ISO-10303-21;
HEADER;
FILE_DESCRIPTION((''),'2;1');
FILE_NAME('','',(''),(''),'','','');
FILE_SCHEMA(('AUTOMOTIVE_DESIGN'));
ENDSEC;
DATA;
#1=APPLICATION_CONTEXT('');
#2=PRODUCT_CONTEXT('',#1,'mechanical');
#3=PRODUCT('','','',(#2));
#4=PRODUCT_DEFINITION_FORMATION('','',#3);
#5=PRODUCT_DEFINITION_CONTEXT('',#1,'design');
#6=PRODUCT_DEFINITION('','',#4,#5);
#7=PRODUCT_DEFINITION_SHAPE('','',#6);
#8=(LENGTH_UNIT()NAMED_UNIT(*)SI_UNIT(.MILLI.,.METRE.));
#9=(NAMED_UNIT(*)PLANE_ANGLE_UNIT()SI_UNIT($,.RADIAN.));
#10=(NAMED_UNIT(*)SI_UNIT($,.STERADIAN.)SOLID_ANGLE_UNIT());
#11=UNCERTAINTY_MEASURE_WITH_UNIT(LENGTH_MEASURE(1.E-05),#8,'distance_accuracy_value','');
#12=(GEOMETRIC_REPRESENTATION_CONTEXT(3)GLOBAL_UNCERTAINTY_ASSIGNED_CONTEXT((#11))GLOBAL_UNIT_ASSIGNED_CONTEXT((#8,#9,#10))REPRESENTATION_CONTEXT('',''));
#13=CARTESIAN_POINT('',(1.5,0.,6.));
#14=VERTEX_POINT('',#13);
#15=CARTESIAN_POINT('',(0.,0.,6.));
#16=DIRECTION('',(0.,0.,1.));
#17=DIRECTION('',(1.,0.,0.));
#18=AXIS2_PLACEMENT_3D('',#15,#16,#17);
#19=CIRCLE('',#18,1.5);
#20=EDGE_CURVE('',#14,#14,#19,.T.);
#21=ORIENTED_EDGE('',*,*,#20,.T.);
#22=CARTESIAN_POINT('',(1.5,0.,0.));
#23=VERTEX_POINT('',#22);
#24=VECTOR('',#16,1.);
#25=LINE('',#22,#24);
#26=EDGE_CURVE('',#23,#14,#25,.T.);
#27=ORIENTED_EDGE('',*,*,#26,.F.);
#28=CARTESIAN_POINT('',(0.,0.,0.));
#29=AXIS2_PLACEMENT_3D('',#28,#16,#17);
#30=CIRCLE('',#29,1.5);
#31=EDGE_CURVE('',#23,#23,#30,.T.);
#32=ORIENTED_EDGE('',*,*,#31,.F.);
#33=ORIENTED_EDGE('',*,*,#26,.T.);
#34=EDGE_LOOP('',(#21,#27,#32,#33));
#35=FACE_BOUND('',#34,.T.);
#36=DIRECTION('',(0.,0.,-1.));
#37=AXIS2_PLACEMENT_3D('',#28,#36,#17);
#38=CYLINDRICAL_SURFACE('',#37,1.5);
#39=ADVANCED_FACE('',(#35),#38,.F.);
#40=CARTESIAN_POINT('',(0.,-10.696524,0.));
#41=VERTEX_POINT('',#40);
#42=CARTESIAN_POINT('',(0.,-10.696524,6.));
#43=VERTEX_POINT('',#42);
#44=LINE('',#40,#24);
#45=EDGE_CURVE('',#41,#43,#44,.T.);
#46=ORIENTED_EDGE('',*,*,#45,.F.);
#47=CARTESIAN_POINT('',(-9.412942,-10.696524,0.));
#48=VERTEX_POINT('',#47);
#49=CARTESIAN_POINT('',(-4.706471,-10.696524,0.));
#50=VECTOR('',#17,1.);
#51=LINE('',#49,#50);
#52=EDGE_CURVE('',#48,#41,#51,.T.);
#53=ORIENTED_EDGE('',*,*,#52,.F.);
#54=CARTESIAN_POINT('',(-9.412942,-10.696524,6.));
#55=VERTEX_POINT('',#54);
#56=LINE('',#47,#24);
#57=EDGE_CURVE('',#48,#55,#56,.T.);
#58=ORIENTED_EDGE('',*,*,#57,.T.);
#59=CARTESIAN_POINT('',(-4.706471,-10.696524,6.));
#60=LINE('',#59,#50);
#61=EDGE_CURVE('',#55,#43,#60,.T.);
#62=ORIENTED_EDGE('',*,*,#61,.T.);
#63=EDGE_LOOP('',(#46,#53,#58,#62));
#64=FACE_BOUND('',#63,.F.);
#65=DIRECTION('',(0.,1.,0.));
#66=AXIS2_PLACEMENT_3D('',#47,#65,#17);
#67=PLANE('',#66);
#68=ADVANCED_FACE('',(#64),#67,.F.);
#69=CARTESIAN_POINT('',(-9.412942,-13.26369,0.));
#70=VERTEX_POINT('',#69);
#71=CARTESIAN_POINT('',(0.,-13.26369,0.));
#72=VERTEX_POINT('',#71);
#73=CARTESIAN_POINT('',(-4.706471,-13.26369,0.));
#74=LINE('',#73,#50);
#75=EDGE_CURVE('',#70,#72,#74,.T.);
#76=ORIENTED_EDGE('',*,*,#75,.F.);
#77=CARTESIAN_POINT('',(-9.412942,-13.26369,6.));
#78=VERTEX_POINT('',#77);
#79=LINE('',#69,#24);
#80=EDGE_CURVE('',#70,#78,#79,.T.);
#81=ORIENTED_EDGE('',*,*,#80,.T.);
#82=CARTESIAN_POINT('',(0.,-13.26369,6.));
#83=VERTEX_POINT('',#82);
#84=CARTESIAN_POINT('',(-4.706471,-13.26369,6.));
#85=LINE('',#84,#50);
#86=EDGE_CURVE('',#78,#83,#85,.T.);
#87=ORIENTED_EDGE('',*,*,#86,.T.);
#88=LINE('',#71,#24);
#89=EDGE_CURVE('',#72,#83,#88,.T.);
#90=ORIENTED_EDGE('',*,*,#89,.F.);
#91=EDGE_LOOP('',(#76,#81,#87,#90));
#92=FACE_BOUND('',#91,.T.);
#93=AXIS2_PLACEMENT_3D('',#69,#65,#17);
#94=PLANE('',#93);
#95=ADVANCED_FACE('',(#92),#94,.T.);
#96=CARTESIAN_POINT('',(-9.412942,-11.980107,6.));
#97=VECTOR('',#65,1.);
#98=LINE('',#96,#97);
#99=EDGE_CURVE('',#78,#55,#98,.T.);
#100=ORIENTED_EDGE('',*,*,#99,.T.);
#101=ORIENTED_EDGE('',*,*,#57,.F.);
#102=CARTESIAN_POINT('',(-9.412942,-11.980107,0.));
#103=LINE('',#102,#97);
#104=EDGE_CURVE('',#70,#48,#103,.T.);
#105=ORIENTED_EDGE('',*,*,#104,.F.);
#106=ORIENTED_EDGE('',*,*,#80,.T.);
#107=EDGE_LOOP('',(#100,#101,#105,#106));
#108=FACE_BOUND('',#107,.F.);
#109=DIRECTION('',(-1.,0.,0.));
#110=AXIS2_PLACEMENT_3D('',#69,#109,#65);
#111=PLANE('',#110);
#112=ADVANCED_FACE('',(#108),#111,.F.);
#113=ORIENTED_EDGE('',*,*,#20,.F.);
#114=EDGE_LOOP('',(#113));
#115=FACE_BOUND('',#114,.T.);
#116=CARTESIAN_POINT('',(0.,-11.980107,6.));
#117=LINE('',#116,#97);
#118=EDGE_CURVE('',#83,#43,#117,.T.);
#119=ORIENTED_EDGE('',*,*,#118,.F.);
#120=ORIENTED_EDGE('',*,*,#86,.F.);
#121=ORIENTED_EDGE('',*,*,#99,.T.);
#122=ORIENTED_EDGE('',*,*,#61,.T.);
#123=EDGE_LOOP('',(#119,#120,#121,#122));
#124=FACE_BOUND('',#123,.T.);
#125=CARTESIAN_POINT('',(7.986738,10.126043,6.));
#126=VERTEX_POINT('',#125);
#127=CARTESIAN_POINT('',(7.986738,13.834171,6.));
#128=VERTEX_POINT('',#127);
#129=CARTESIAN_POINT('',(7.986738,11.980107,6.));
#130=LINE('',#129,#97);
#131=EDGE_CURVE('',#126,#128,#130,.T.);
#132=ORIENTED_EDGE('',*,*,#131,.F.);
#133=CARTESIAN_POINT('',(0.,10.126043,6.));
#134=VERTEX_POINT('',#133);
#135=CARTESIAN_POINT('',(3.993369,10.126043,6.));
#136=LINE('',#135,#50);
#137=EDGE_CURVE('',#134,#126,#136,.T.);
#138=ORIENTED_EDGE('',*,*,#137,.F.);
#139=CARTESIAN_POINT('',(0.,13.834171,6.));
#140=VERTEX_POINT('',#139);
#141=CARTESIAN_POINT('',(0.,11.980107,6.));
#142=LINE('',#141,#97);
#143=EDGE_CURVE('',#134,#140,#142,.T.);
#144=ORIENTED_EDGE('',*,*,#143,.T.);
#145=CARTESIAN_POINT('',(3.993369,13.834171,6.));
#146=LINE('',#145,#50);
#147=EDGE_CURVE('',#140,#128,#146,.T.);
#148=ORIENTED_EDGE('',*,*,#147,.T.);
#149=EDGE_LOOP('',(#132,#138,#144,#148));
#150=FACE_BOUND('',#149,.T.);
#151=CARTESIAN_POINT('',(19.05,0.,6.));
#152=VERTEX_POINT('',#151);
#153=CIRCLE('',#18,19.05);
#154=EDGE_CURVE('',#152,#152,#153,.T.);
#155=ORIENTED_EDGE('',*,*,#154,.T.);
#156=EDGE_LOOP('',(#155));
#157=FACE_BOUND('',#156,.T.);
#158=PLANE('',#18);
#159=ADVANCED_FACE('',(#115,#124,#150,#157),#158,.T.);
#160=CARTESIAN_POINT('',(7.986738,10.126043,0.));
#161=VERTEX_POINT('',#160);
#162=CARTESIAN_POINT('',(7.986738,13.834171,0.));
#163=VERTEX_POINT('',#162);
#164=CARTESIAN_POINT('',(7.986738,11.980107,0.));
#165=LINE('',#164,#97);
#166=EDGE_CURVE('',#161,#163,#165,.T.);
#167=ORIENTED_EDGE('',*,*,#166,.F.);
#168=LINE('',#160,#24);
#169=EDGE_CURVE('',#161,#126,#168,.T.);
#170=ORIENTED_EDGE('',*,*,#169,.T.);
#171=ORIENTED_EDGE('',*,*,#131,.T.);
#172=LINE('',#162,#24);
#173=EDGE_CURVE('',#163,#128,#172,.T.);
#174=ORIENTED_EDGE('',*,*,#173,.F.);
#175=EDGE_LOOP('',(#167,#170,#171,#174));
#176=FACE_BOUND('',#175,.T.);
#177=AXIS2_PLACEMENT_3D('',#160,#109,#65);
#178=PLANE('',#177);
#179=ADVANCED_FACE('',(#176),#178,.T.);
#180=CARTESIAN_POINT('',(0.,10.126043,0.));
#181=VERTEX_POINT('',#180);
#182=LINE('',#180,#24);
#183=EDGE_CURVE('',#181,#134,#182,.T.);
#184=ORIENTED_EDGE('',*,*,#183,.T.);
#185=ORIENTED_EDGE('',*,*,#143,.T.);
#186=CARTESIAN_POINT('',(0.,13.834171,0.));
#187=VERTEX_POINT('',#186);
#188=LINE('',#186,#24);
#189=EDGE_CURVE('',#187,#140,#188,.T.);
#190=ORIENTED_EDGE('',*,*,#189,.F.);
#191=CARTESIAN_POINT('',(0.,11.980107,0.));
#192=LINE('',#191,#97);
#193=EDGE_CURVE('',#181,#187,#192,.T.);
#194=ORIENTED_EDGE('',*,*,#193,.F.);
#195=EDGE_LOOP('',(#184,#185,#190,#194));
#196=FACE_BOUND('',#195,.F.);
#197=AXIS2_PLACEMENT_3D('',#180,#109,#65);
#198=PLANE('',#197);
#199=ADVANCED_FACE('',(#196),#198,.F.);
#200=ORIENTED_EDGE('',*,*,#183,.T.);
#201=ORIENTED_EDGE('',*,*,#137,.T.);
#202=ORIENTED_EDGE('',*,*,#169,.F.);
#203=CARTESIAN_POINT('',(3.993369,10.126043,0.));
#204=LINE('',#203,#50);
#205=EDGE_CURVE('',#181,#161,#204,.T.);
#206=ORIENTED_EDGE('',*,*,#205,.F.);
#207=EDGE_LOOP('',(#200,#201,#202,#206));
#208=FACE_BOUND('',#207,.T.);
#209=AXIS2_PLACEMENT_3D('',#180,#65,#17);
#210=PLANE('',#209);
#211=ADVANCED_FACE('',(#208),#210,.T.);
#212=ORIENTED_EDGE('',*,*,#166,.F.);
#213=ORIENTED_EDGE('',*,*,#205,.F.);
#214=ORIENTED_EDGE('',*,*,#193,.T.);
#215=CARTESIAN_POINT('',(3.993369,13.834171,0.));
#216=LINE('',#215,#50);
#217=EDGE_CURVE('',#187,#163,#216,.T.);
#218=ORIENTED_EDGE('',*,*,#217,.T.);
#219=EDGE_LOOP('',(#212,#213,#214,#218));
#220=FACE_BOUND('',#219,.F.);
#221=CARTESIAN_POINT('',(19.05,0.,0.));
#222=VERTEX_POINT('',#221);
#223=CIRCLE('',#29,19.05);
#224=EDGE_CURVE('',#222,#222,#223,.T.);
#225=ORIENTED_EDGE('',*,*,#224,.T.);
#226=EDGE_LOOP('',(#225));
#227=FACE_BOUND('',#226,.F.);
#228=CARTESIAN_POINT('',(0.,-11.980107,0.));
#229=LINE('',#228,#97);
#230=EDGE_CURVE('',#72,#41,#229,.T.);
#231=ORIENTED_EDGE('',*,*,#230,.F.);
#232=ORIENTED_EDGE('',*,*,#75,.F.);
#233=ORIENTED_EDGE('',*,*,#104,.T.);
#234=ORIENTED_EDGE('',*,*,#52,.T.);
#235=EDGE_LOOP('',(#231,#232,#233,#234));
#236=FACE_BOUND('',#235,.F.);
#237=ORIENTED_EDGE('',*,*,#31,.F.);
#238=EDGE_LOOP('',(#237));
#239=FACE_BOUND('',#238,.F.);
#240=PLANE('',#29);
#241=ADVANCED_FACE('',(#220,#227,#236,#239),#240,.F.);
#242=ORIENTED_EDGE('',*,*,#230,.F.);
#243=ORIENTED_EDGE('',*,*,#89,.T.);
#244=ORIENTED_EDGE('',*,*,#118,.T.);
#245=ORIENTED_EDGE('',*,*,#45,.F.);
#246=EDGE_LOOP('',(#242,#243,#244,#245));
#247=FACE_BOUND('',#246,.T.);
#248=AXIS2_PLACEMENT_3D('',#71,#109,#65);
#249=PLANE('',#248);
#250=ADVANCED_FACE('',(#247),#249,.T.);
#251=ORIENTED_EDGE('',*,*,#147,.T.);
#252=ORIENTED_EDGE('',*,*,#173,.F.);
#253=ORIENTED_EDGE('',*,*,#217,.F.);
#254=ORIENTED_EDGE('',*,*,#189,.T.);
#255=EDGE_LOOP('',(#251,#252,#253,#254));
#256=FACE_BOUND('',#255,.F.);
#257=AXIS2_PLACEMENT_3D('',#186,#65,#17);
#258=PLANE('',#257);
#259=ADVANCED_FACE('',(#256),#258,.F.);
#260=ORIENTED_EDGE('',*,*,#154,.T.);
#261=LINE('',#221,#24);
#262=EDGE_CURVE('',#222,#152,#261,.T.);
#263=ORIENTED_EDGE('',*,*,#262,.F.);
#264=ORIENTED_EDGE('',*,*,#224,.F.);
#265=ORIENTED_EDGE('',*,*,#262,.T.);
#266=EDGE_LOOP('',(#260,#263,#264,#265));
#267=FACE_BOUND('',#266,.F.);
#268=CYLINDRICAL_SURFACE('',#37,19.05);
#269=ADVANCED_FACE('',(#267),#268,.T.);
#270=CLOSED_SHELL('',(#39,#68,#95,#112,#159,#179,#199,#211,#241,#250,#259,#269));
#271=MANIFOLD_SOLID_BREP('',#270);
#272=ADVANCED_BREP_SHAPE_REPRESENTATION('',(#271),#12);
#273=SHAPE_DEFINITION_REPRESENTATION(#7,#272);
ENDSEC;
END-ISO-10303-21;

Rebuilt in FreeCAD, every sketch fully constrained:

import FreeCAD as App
import Part
import Sketcher
from FreeCAD import Vector


def add_polygon(sketch, points):
    """Adds a closed chain of lines whose ends are joined by coincident constraints."""
    first, n = sketch.GeometryCount, len(points)
    for a, b in zip(points, points[1:] + points[:1]):
        sketch.addGeometry(Part.LineSegment(App.Vector(*a, 0), App.Vector(*b, 0)), False)
    for i in range(n):
        sketch.addConstraint(Sketcher.Constraint("Coincident", first + i, 2, first + (i + 1) % n, 1))

doc = App.newDocument("Part")
params = doc.addObject("Spreadsheet::Sheet", "Params")
for row, (alias, value) in enumerate([
    ("sketch1_diameter", "3 mm"),
    ("sketch1_diameter2", "38.1 mm"),
    ("pad1_length", "6 mm"),
], start=1):
    params.set(f"A{row}", alias)
    params.set(f"B{row}", "=" + value)
    params.setAlias(f"B{row}", alias)

body = doc.addObject("PartDesign::Body", "Body")

sketch1 = body.newObject("Sketcher::SketchObject", "Sketch")
sketch1.AttachmentSupport = (doc.getObject("XY_Plane"), [""])
sketch1.MapMode = "FlatFace"
sketch1.addGeometry(Part.Circle(Vector(0, 0, 0), Vector(0, 0, 1), 19.1), False)
add_polygon(sketch1, [(0, -13.3), (-9.4, -13.3), (-9.4, -10.7), (0, -10.7)])
sketch1.addGeometry(Part.Circle(Vector(0, 0, 0), Vector(0, 0, 1), 1.5), False)
add_polygon(sketch1, [(8, 10.1), (0, 10.1), (0, 13.8), (8, 13.8)])
sketch1.addConstraint(Sketcher.Constraint("Horizontal", 1))
sketch1.addConstraint(Sketcher.Constraint("Vertical", 2))
sketch1.addConstraint(Sketcher.Constraint("Horizontal", 3))
sketch1.addConstraint(Sketcher.Constraint("Vertical", 4))
sketch1.addConstraint(Sketcher.Constraint("Horizontal", 6))
sketch1.addConstraint(Sketcher.Constraint("Vertical", 7))
sketch1.addConstraint(Sketcher.Constraint("Horizontal", 8))
sketch1.addConstraint(Sketcher.Constraint("Vertical", 9))
sketch1.addConstraint(Sketcher.Constraint("Coincident", 0, 3, -1, 1))
sketch1.addConstraint(Sketcher.Constraint("Coincident", 5, 3, -1, 1))
sketch1.addConstraint(Sketcher.Constraint("PointOnObject", 3, 2, -2))
sketch1.addConstraint(Sketcher.Constraint("PointOnObject", 6, 2, -2))
sketch1.addConstraint(Sketcher.Constraint("Diameter", 5, 3.0))
sketch1.addConstraint(Sketcher.Constraint("Diameter", 0, 38.1))
sketch1.addConstraint(Sketcher.Constraint("DistanceX", 1, 2, 1, 1, 9.412942))
sketch1.addConstraint(Sketcher.Constraint("DistanceY", 7, 1, 7, 2, 3.708128))
sketch1.addConstraint(Sketcher.Constraint("DistanceX", 6, 2, 6, 1, 7.986738))
sketch1.addConstraint(Sketcher.Constraint("DistanceY", 2, 1, 2, 2, 2.567166))
sketch1.addConstraint(Sketcher.Constraint("DistanceY", 1, 2, -1, 1, 13.26369))
sketch1.addConstraint(Sketcher.Constraint("DistanceY", -1, 1, 7, 2, 13.834171))
sketch1.setExpression("Constraints[20]", "Params.sketch1_diameter")
sketch1.setExpression("Constraints[21]", "Params.sketch1_diameter2")
pad1 = body.newObject("PartDesign::Pad", "Pad")
pad1.Profile = sketch1
pad1.setExpression("Length", "Params.pad1_length")

doc.recompute()
